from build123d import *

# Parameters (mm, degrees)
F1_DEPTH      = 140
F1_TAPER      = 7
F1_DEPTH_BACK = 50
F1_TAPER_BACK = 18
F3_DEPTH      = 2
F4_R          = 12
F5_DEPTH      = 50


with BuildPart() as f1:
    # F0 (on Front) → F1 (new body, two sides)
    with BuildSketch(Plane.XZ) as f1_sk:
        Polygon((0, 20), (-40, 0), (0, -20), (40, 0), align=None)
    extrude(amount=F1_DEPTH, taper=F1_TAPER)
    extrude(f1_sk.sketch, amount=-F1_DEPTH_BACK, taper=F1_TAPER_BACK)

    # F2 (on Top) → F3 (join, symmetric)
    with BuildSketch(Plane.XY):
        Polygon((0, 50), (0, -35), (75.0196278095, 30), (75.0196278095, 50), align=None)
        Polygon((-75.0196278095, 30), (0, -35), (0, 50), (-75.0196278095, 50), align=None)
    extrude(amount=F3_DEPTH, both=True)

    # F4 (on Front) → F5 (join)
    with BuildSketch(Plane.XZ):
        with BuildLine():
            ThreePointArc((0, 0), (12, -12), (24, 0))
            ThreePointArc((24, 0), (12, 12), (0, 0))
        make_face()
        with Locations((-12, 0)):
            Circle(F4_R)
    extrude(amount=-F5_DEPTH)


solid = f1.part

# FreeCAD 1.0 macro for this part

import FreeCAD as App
import Part
import Sketcher


def add_polygon(sketch, points):
    """Adds a closed chain of lines whose ends are joined by coincident constraints."""
    first, n = sketch.GeometryCount, len(points)
    for a, b in zip(points, points[1:] + points[:1]):
        sketch.addGeometry(Part.LineSegment(App.Vector(*a, 0), App.Vector(*b, 0)), False)
    for i in range(n):
        sketch.addConstraint(Sketcher.Constraint("Coincident", first + i, 2, first + (i + 1) % n, 1))

doc = App.newDocument("Part")
body = doc.addObject("PartDesign::Body", "Body")

# Sketch on XZ plane
sketch1 = body.newObject("Sketcher::SketchObject", "Sketch")
sketch1.AttachmentSupport = (doc.getObject("XZ_Plane"), [""])
sketch1.MapMode = "FlatFace"
add_polygon(sketch1, [(0, 20), (-40, 0), (0, -20), (40, 0)])  # lines 0-3
sketch1.addConstraint([
    Sketcher.Constraint("Symmetric", 0, 2, 2, 2, -1, 1),
    Sketcher.Constraint("Symmetric", 1, 2, 3, 2, -1, 1),
    Sketcher.Constraint("PointOnObject", 0, 2, -1),
    Sketcher.Constraint("PointOnObject", 1, 2, -2),
    Sketcher.Constraint("DistanceX", 0, 2, -1, 1, 40.0),
    Sketcher.Constraint("DistanceY", 1, 2, -1, 1, 20.0),
])
pad1 = body.newObject("PartDesign::Pad", "Pad")
pad1.Profile = sketch1
pad1.Length = 140
pad1.TaperAngle = -7
pad2 = body.newObject("PartDesign::Pad", "Pad001")
pad2.Profile = sketch1
pad2.Length = 50
pad2.Reversed = True
pad2.TaperAngle = -18

# Sketch on XY plane
sketch2 = body.newObject("Sketcher::SketchObject", "Sketch001")
sketch2.AttachmentSupport = (doc.getObject("XY_Plane"), [""])
sketch2.MapMode = "FlatFace"
add_polygon(sketch2, [(0, -35), (75.019628, 30), (75.019628, 50), (-75.019628, 50), (-75.019628, 30)])  # lines 0-4
sketch2.addConstraint([
    Sketcher.Constraint("Vertical", 1),
    Sketcher.Constraint("Horizontal", 2),
    Sketcher.Constraint("Vertical", 3),
    Sketcher.Constraint("Symmetric", 0, 2, 3, 2, -2),
    Sketcher.Constraint("PointOnObject", 4, 2, -2),
    Sketcher.Constraint("DistanceY", 1, 1, 1, 2, 20.0),
    Sketcher.Constraint("DistanceY", -1, 1, 0, 2, 30.0),
    Sketcher.Constraint("DistanceY", 4, 2, -1, 1, 35.0),
    Sketcher.Constraint("Distance", 0, 99.262),
])
pad3 = body.newObject("PartDesign::Pad", "Pad002")
pad3.Profile = sketch2
pad3.Length = 4
pad3.Midplane = True

# Sketch on XZ plane
sketch3 = body.newObject("Sketcher::SketchObject", "Sketch002")
sketch3.AttachmentSupport = (doc.getObject("XZ_Plane"), [""])
sketch3.MapMode = "FlatFace"
sketch3.addGeometry([
    Part.Circle(App.Vector(12, 0, 0), App.Vector(0, 0, 1), 12),
    Part.Circle(App.Vector(-12, 0, 0), App.Vector(0, 0, 1), 12),
], False)
sketch3.addConstraint([
    Sketcher.Constraint("Equal", 0, 1),
    Sketcher.Constraint("Symmetric", 0, 3, 1, 3, -1, 1),
    Sketcher.Constraint("PointOnObject", 0, 3, -1),
    Sketcher.Constraint("Diameter", 0, 24.0),
    Sketcher.Constraint("DistanceX", -1, 1, 0, 3, 12.0),
])
pad4 = body.newObject("PartDesign::Pad", "Pad003")
pad4.Profile = sketch3
pad4.Length = 50
pad4.Reversed = True

doc.recompute()
